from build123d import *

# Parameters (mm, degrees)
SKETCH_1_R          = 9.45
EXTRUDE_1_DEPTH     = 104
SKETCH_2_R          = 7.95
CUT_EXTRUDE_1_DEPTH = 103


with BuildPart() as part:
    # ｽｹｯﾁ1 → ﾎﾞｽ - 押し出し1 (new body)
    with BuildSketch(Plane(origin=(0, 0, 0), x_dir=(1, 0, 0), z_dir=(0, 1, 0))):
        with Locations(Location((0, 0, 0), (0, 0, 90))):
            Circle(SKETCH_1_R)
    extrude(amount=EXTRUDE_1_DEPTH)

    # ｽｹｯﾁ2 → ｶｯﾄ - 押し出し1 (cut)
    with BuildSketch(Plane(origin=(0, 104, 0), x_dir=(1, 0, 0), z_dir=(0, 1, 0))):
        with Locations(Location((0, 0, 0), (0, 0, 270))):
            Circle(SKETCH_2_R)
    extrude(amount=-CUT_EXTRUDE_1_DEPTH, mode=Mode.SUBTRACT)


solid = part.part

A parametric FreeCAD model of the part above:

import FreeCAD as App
import Part
import Sketcher
from FreeCAD import Vector

doc = App.newDocument("Part")
params = doc.addObject("Spreadsheet::Sheet", "Params")
for row, (alias, value) in enumerate([
    ("sketch1_diameter", "18.9 mm"),
    ("pad1_length", "104 mm"),
    ("sketch2_diameter", "15.9 mm"),
    ("pocket1_length", "103 mm"),
], start=1):
    params.set(f"A{row}", alias)
    params.set(f"B{row}", "=" + value)
    params.setAlias(f"B{row}", alias)

body = doc.addObject("PartDesign::Body", "Body")

# Sketch on XZ plane
sketch1 = body.newObject("Sketcher::SketchObject", "Sketch")
sketch1.AttachmentSupport = (doc.getObject("XZ_Plane"), [""])
sketch1.MapMode = "FlatFace"
sketch1.addGeometry(Part.Circle(Vector(0, 0, 0), Vector(0, 0, 1), 9), False)
sketch1.addConstraint([
    Sketcher.Constraint("Coincident", 0, 3, -1, 1),
    Sketcher.Constraint("Diameter", 0, 18.9),
])
sketch1.setExpression("Constraints[1]", "Params.sketch1_diameter")
pad1 = body.newObject("PartDesign::Pad", "Pad")
pad1.Profile = sketch1
pad1.setExpression("Length", "Params.pad1_length")
pad1.Reversed = True

# Sketch on XZ plane
sketch2 = body.newObject("Sketcher::SketchObject", "Sketch001")
sketch2.AttachmentSupport = (doc.getObject("XZ_Plane"), [""])
sketch2.MapMode = "FlatFace"
sketch2.AttachmentOffset = App.Placement(Vector(0, 0, -104), App.Rotation())
sketch2.addGeometry(Part.Circle(Vector(0, 0, 0), Vector(0, 0, 1), 8), False)
sketch2.addConstraint([
    Sketcher.Constraint("Coincident", 0, 3, -1, 1),
    Sketcher.Constraint("Diameter", 0, 15.9),
])
sketch2.setExpression("Constraints[1]", "Params.sketch2_diameter")
pocket1 = body.newObject("PartDesign::Pocket", "Pocket")
pocket1.Profile = sketch2
pocket1.setExpression("Length", "Params.pocket1_length")
pocket1.Reversed = True

doc.recompute()
